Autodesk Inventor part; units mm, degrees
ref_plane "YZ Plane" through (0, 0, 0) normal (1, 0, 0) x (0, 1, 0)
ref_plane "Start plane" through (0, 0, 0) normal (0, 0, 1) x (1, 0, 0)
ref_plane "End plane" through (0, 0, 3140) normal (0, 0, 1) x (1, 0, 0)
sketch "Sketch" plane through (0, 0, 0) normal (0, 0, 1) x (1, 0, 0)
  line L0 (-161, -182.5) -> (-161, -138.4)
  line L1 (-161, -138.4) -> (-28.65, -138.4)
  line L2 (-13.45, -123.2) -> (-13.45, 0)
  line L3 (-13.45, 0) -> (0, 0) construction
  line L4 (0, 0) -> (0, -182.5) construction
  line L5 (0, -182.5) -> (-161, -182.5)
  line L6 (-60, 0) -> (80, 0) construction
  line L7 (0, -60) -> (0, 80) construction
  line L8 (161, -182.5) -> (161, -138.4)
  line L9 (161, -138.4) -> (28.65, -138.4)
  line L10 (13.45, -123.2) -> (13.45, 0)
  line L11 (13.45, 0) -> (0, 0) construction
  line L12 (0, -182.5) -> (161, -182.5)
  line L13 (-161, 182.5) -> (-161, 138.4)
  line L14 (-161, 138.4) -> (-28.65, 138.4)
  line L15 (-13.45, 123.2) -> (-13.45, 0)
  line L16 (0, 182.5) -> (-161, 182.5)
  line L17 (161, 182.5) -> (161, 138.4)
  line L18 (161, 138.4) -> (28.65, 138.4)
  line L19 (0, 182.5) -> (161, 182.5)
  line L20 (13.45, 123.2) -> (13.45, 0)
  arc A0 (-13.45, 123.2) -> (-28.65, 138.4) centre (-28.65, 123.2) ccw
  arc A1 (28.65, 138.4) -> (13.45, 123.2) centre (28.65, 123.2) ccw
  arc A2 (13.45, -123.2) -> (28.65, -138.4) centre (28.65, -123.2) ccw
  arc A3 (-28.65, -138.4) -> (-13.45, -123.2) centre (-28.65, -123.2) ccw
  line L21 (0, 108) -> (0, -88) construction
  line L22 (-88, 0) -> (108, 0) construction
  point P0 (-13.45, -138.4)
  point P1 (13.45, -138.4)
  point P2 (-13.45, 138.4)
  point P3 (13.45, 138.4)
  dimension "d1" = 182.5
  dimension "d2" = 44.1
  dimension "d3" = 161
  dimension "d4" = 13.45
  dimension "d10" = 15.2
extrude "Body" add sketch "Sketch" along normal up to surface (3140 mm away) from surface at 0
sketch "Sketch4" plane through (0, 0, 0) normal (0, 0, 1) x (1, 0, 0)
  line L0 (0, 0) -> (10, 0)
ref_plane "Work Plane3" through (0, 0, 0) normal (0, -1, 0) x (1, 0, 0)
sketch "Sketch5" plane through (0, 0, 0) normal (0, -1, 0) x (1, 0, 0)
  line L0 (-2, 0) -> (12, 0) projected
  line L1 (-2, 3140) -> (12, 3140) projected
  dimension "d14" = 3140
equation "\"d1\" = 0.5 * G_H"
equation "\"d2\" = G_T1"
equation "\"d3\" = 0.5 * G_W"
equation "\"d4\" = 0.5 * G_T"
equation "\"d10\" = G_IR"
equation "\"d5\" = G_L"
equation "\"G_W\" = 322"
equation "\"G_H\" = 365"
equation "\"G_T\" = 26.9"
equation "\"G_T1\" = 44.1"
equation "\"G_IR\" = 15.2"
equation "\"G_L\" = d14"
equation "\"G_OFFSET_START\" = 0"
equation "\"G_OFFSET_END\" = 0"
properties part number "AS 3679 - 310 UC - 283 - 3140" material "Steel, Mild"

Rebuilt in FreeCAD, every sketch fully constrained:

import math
import FreeCAD as App
import Part
import Sketcher

doc = App.newDocument("Part")
body = doc.addObject("PartDesign::Body", "Body")

sketch1 = doc.addObject("Sketcher::SketchObject", "Sketch")
body.addObject(sketch1)
sketch1.AttachmentSupport = (doc.XY_Plane, [""])
sketch1.MapMode = "FlatFace"
sketch1.addGeometry(Part.LineSegment(App.Vector(-161, -138, 0), App.Vector(-161, -182, 0)), False)
sketch1.addGeometry(Part.LineSegment(App.Vector(-161, -182, 0), App.Vector(161, -182, 0)), False)
sketch1.addGeometry(Part.LineSegment(App.Vector(161, -182, 0), App.Vector(161, -138, 0)), False)
sketch1.addGeometry(Part.LineSegment(App.Vector(161, -138, 0), App.Vector(29, -138, 0)), False)
sketch1.addGeometry(Part.ArcOfCircle(Part.Circle(App.Vector(29, -123, 0), App.Vector(0, 0, 1), 15), math.radians(180), math.radians(270)), False)
sketch1.addGeometry(Part.LineSegment(App.Vector(13, -123, 0), App.Vector(13, 123, 0)), False)
sketch1.addGeometry(Part.ArcOfCircle(Part.Circle(App.Vector(29, 123, 0), App.Vector(0, 0, 1), 15), math.radians(90), math.radians(180)), False)
sketch1.addGeometry(Part.LineSegment(App.Vector(29, 138, 0), App.Vector(161, 138, 0)), False)
sketch1.addGeometry(Part.LineSegment(App.Vector(161, 138, 0), App.Vector(161, 182, 0)), False)
sketch1.addGeometry(Part.LineSegment(App.Vector(161, 182, 0), App.Vector(-161, 182, 0)), False)
sketch1.addGeometry(Part.LineSegment(App.Vector(-161, 182, 0), App.Vector(-161, 138, 0)), False)
sketch1.addGeometry(Part.LineSegment(App.Vector(-161, 138, 0), App.Vector(-29, 138, 0)), False)
sketch1.addGeometry(Part.ArcOfCircle(Part.Circle(App.Vector(-29, 123, 0), App.Vector(0, 0, 1), 15), math.radians(0), math.radians(90)), False)
sketch1.addGeometry(Part.LineSegment(App.Vector(-13, 123, 0), App.Vector(-13, -123, 0)), False)
sketch1.addGeometry(Part.ArcOfCircle(Part.Circle(App.Vector(-29, -123, 0), App.Vector(0, 0, 1), 15), math.radians(-90), math.radians(0)), False)
sketch1.addGeometry(Part.LineSegment(App.Vector(-29, -138, 0), App.Vector(-161, -138, 0)), False)
sketch1.addConstraint(Sketcher.Constraint("Coincident", 0, 2, 1, 1))
sketch1.addConstraint(Sketcher.Constraint("Coincident", 1, 2, 2, 1))
sketch1.addConstraint(Sketcher.Constraint("Coincident", 2, 2, 3, 1))
sketch1.addConstraint(Sketcher.Constraint("Tangent", 3, 2, 4, 2))
sketch1.addConstraint(Sketcher.Constraint("Tangent", 4, 1, 5, 1))
sketch1.addConstraint(Sketcher.Constraint("Tangent", 5, 2, 6, 2))
sketch1.addConstraint(Sketcher.Constraint("Tangent", 6, 1, 7, 1))
sketch1.addConstraint(Sketcher.Constraint("Coincident", 7, 2, 8, 1))
sketch1.addConstraint(Sketcher.Constraint("Coincident", 8, 2, 9, 1))
sketch1.addConstraint(Sketcher.Constraint("Coincident", 9, 2, 10, 1))
sketch1.addConstraint(Sketcher.Constraint("Coincident", 10, 2, 11, 1))
sketch1.addConstraint(Sketcher.Constraint("Tangent", 11, 2, 12, 2))
sketch1.addConstraint(Sketcher.Constraint("Tangent", 12, 1, 13, 1))
sketch1.addConstraint(Sketcher.Constraint("Tangent", 13, 2, 14, 2))
sketch1.addConstraint(Sketcher.Constraint("Tangent", 14, 1, 15, 1))
sketch1.addConstraint(Sketcher.Constraint("Coincident", 15, 2, 0, 1))
sketch1.addConstraint(Sketcher.Constraint("Vertical", 0))
sketch1.addConstraint(Sketcher.Constraint("Horizontal", 1))
sketch1.addConstraint(Sketcher.Constraint("Vertical", 2))
sketch1.addConstraint(Sketcher.Constraint("Horizontal", 3))
sketch1.addConstraint(Sketcher.Constraint("Vertical", 5))
sketch1.addConstraint(Sketcher.Constraint("Horizontal", 7))
sketch1.addConstraint(Sketcher.Constraint("Vertical", 8))
sketch1.addConstraint(Sketcher.Constraint("Horizontal", 9))
sketch1.addConstraint(Sketcher.Constraint("Vertical", 10))
sketch1.addConstraint(Sketcher.Constraint("Horizontal", 11))
sketch1.addConstraint(Sketcher.Constraint("Vertical", 13))
sketch1.addConstraint(Sketcher.Constraint("Horizontal", 15))
sketch1.addConstraint(Sketcher.Constraint("Equal", 4, 6))
sketch1.addConstraint(Sketcher.Constraint("Equal", 6, 12))
sketch1.addConstraint(Sketcher.Constraint("Equal", 12, 14))
sketch1.addConstraint(Sketcher.Constraint("Symmetric", 4, 3, 12, 3, -1, 1))
sketch1.addConstraint(Sketcher.Constraint("Symmetric", 0, 2, 8, 2, -1, 1))
sketch1.addConstraint(Sketcher.Constraint("Symmetric", 7, 2, 10, 2, -2))
sketch1.addConstraint(Sketcher.Constraint("Symmetric", 2, 2, 15, 2, -2))
sketch1.addConstraint(Sketcher.Constraint("Radius", 4, 15.2))
sketch1.addConstraint(Sketcher.Constraint("DistanceY", 0, 2, 0, 1, 44.1))
sketch1.addConstraint(Sketcher.Constraint("DistanceX", 0, 2, -1, 1, 161.0))
sketch1.addConstraint(Sketcher.Constraint("DistanceY", 0, 2, -1, 1, 182.5))
sketch1.addConstraint(Sketcher.Constraint("DistanceX", -1, 1, 4, 1, 13.45))
pad1 = doc.addObject("PartDesign::Pad", "Pad")
body.addObject(pad1)
pad1.Profile = sketch1
pad1.Length = 3140

doc.recompute()
